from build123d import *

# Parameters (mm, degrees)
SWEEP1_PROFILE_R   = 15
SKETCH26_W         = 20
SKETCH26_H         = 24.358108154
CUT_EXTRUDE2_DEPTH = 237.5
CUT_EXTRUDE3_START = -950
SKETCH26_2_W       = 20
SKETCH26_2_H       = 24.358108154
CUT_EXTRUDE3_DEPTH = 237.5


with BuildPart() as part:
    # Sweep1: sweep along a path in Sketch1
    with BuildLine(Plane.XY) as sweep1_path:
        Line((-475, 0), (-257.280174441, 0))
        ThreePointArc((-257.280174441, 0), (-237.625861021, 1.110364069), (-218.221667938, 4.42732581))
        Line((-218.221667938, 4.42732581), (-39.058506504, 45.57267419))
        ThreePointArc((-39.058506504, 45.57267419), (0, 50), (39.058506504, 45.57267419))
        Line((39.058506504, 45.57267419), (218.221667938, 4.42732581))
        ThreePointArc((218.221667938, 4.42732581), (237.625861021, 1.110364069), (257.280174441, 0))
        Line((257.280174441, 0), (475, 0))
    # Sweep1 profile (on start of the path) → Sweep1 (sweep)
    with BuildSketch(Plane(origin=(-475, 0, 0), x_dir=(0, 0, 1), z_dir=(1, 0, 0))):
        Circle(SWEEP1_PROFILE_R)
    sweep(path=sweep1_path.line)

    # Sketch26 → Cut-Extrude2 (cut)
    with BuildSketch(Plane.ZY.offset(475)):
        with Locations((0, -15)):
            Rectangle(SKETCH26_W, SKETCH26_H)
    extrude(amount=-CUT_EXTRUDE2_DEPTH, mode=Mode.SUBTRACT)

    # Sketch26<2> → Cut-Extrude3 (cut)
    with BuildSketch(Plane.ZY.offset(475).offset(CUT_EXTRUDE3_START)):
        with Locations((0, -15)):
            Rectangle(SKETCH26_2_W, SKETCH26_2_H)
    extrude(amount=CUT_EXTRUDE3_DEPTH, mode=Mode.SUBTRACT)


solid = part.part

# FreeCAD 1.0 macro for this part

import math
import FreeCAD as App
import Part
import Sketcher

doc = App.newDocument("Part")
params = doc.addObject("Spreadsheet::Sheet", "Params")
for row, (alias, value) in enumerate([
    ("sketch1_diameter", "30 mm"),
    ("sketch3_height", "20 mm"),
    ("pocket1_length", "237.5 mm"),
    ("sketch4_height", "20 mm"),
    ("pocket2_length", "237.5 mm"),
], start=1):
    params.set(f"A{row}", alias)
    params.set(f"B{row}", "=" + value)
    params.setAlias(f"B{row}", alias)

body = doc.addObject("PartDesign::Body", "Body")

# Sketch on YZ plane
sketch1 = body.newObject("Sketcher::SketchObject", "Sketch")
sketch1.AttachmentSupport = (doc.getObject("YZ_Plane"), [""])
sketch1.MapMode = "FlatFace"
sketch1.AttachmentOffset = App.Placement(App.Vector(0, 0, -475), App.Rotation())
sketch1.addGeometry(Part.Circle(App.Vector(0, 0, 0), App.Vector(0, 0, 1), 15), False)
sketch1.addConstraint([
    Sketcher.Constraint("Coincident", 0, 3, -1, 1),
    Sketcher.Constraint("Diameter", 0, 30.0),
])
sketch1.setExpression("Constraints[1]", "Params.sketch1_diameter")

# Sketch on XY plane
sketch2 = body.newObject("Sketcher::SketchObject", "Sketch001")
sketch2.AttachmentSupport = (doc.getObject("XY_Plane"), [""])
sketch2.MapMode = "FlatFace"
sketch2.addGeometry([
    Part.LineSegment(App.Vector(-475, 0, 0), App.Vector(-257, 0, 0)),  # 0
    Part.ArcOfCircle(Part.Circle(App.Vector(-257, 175, 0), App.Vector(0, 0, 1), 175), math.radians(-90), math.radians(-77.07)),  # 1
    Part.LineSegment(App.Vector(-218, 4, 0), App.Vector(-39, 46, 0)),  # 2
    Part.ArcOfCircle(Part.Circle(App.Vector(0, -125, 0), App.Vector(0, 0, 1), 175), math.radians(77), math.radians(103)),  # 3
    Part.LineSegment(App.Vector(39, 46, 0), App.Vector(218, 4, 0)),  # 4
    Part.ArcOfCircle(Part.Circle(App.Vector(257, 175, 0), App.Vector(0, 0, 1), 175), math.radians(-102.93), math.radians(-90)),  # 5
    Part.LineSegment(App.Vector(257, 0, 0), App.Vector(475, 0, 0)),  # 6
], False)
sketch2.addConstraint([
    Sketcher.Constraint("Tangent", 0, 2, 1, 1),
    Sketcher.Constraint("Tangent", 1, 2, 2, 1),
    Sketcher.Constraint("Tangent", 2, 2, 3, 2),
    Sketcher.Constraint("Tangent", 3, 1, 4, 1),
    Sketcher.Constraint("Tangent", 4, 2, 5, 1),
    Sketcher.Constraint("Tangent", 5, 2, 6, 1),
    Sketcher.Constraint("Horizontal", 0),
    Sketcher.Constraint("Horizontal", 6),
    Sketcher.Constraint("Equal", 1, 3),
    Sketcher.Constraint("Equal", 3, 5),
    Sketcher.Constraint("Symmetric", 0, 2, 5, 2, -1, 1),
    Sketcher.Constraint("Symmetric", 2, 2, 3, 1, -2),
    Sketcher.Constraint("Equal", 0, 6),
    Sketcher.Constraint("DistanceX", 0, 1, -1, 1, 475.0),
    Sketcher.Constraint("Radius", 1, 174.50355),
    Sketcher.Constraint("DistanceY", 3, 3, 1, 3, 299.0071),
    Sketcher.Constraint("DistanceX", 0, 1, 0, 2, 217.719826),
])
doc.recompute()

additivepipe = body.newObject("PartDesign::AdditivePipe", "AdditivePipe")
additivepipe.Profile = sketch1
additivepipe.Spine = (sketch2, ["Edge1", "Edge2", "Edge3", "Edge4", "Edge5", "Edge6", "Edge7"])

# Sketch on YZ plane
sketch3 = body.newObject("Sketcher::SketchObject", "Sketch002")
sketch3.AttachmentSupport = (doc.getObject("YZ_Plane"), [""])
sketch3.MapMode = "FlatFace"
sketch3.AttachmentOffset = App.Placement(App.Vector(0, 0, -475), App.Rotation())
sketch3.addGeometry([
    Part.LineSegment(App.Vector(-3, -10, 0), App.Vector(-27, -10, 0)),
    Part.LineSegment(App.Vector(-27, -10, 0), App.Vector(-27, 10, 0)),
    Part.LineSegment(App.Vector(-27, 10, 0), App.Vector(-3, 10, 0)),
    Part.LineSegment(App.Vector(-3, 10, 0), App.Vector(-3, -10, 0)),
], False)
sketch3.addConstraint([
    Sketcher.Constraint("Coincident", 0, 2, 1, 1),
    Sketcher.Constraint("Coincident", 1, 2, 2, 1),
    Sketcher.Constraint("Coincident", 2, 2, 3, 1),
    Sketcher.Constraint("Coincident", 3, 2, 0, 1),
    Sketcher.Constraint("Horizontal", 0),
    Sketcher.Constraint("Vertical", 1),
    Sketcher.Constraint("Horizontal", 2),
    Sketcher.Constraint("Vertical", 3),
    Sketcher.Constraint("DistanceY", 1, 1, 1, 2, 20.0),
    Sketcher.Constraint("DistanceY", 0, 2, -1, 1, 10.0),
    Sketcher.Constraint("DistanceX", 0, 2, 0, 1, 24.358108),
    Sketcher.Constraint("DistanceX", 0, 2, -1, 1, 27.179054),
])
sketch3.setExpression("Constraints[8]", "Params.sketch3_height")
pocket1 = body.newObject("PartDesign::Pocket", "Pocket")
pocket1.Profile = sketch3
pocket1.setExpression("Length", "Params.pocket1_length")
pocket1.Reversed = True

# Sketch on YZ plane
sketch4 = body.newObject("Sketcher::SketchObject", "Sketch003")
sketch4.AttachmentSupport = (doc.getObject("YZ_Plane"), [""])
sketch4.MapMode = "FlatFace"
sketch4.AttachmentOffset = App.Placement(App.Vector(0, 0, 475), App.Rotation())
sketch4.addGeometry([
    Part.LineSegment(App.Vector(-3, -10, 0), App.Vector(-27, -10, 0)),
    Part.LineSegment(App.Vector(-27, -10, 0), App.Vector(-27, 10, 0)),
    Part.LineSegment(App.Vector(-27, 10, 0), App.Vector(-3, 10, 0)),
    Part.LineSegment(App.Vector(-3, 10, 0), App.Vector(-3, -10, 0)),
], False)
sketch4.addConstraint([
    Sketcher.Constraint("Coincident", 0, 2, 1, 1),
    Sketcher.Constraint("Coincident", 1, 2, 2, 1),
    Sketcher.Constraint("Coincident", 2, 2, 3, 1),
    Sketcher.Constraint("Coincident", 3, 2, 0, 1),
    Sketcher.Constraint("Horizontal", 0),
    Sketcher.Constraint("Vertical", 1),
    Sketcher.Constraint("Horizontal", 2),
    Sketcher.Constraint("Vertical", 3),
    Sketcher.Constraint("DistanceY", 1, 1, 1, 2, 20.0),
    Sketcher.Constraint("DistanceY", 0, 2, -1, 1, 10.0),
    Sketcher.Constraint("DistanceX", 0, 2, 0, 1, 24.358108),
    Sketcher.Constraint("DistanceX", 0, 2, -1, 1, 27.179054),
])
sketch4.setExpression("Constraints[8]", "Params.sketch4_height")
pocket2 = body.newObject("PartDesign::Pocket", "Pocket001")
pocket2.Profile = sketch4
pocket2.setExpression("Length", "Params.pocket2_length")

doc.recompute()
